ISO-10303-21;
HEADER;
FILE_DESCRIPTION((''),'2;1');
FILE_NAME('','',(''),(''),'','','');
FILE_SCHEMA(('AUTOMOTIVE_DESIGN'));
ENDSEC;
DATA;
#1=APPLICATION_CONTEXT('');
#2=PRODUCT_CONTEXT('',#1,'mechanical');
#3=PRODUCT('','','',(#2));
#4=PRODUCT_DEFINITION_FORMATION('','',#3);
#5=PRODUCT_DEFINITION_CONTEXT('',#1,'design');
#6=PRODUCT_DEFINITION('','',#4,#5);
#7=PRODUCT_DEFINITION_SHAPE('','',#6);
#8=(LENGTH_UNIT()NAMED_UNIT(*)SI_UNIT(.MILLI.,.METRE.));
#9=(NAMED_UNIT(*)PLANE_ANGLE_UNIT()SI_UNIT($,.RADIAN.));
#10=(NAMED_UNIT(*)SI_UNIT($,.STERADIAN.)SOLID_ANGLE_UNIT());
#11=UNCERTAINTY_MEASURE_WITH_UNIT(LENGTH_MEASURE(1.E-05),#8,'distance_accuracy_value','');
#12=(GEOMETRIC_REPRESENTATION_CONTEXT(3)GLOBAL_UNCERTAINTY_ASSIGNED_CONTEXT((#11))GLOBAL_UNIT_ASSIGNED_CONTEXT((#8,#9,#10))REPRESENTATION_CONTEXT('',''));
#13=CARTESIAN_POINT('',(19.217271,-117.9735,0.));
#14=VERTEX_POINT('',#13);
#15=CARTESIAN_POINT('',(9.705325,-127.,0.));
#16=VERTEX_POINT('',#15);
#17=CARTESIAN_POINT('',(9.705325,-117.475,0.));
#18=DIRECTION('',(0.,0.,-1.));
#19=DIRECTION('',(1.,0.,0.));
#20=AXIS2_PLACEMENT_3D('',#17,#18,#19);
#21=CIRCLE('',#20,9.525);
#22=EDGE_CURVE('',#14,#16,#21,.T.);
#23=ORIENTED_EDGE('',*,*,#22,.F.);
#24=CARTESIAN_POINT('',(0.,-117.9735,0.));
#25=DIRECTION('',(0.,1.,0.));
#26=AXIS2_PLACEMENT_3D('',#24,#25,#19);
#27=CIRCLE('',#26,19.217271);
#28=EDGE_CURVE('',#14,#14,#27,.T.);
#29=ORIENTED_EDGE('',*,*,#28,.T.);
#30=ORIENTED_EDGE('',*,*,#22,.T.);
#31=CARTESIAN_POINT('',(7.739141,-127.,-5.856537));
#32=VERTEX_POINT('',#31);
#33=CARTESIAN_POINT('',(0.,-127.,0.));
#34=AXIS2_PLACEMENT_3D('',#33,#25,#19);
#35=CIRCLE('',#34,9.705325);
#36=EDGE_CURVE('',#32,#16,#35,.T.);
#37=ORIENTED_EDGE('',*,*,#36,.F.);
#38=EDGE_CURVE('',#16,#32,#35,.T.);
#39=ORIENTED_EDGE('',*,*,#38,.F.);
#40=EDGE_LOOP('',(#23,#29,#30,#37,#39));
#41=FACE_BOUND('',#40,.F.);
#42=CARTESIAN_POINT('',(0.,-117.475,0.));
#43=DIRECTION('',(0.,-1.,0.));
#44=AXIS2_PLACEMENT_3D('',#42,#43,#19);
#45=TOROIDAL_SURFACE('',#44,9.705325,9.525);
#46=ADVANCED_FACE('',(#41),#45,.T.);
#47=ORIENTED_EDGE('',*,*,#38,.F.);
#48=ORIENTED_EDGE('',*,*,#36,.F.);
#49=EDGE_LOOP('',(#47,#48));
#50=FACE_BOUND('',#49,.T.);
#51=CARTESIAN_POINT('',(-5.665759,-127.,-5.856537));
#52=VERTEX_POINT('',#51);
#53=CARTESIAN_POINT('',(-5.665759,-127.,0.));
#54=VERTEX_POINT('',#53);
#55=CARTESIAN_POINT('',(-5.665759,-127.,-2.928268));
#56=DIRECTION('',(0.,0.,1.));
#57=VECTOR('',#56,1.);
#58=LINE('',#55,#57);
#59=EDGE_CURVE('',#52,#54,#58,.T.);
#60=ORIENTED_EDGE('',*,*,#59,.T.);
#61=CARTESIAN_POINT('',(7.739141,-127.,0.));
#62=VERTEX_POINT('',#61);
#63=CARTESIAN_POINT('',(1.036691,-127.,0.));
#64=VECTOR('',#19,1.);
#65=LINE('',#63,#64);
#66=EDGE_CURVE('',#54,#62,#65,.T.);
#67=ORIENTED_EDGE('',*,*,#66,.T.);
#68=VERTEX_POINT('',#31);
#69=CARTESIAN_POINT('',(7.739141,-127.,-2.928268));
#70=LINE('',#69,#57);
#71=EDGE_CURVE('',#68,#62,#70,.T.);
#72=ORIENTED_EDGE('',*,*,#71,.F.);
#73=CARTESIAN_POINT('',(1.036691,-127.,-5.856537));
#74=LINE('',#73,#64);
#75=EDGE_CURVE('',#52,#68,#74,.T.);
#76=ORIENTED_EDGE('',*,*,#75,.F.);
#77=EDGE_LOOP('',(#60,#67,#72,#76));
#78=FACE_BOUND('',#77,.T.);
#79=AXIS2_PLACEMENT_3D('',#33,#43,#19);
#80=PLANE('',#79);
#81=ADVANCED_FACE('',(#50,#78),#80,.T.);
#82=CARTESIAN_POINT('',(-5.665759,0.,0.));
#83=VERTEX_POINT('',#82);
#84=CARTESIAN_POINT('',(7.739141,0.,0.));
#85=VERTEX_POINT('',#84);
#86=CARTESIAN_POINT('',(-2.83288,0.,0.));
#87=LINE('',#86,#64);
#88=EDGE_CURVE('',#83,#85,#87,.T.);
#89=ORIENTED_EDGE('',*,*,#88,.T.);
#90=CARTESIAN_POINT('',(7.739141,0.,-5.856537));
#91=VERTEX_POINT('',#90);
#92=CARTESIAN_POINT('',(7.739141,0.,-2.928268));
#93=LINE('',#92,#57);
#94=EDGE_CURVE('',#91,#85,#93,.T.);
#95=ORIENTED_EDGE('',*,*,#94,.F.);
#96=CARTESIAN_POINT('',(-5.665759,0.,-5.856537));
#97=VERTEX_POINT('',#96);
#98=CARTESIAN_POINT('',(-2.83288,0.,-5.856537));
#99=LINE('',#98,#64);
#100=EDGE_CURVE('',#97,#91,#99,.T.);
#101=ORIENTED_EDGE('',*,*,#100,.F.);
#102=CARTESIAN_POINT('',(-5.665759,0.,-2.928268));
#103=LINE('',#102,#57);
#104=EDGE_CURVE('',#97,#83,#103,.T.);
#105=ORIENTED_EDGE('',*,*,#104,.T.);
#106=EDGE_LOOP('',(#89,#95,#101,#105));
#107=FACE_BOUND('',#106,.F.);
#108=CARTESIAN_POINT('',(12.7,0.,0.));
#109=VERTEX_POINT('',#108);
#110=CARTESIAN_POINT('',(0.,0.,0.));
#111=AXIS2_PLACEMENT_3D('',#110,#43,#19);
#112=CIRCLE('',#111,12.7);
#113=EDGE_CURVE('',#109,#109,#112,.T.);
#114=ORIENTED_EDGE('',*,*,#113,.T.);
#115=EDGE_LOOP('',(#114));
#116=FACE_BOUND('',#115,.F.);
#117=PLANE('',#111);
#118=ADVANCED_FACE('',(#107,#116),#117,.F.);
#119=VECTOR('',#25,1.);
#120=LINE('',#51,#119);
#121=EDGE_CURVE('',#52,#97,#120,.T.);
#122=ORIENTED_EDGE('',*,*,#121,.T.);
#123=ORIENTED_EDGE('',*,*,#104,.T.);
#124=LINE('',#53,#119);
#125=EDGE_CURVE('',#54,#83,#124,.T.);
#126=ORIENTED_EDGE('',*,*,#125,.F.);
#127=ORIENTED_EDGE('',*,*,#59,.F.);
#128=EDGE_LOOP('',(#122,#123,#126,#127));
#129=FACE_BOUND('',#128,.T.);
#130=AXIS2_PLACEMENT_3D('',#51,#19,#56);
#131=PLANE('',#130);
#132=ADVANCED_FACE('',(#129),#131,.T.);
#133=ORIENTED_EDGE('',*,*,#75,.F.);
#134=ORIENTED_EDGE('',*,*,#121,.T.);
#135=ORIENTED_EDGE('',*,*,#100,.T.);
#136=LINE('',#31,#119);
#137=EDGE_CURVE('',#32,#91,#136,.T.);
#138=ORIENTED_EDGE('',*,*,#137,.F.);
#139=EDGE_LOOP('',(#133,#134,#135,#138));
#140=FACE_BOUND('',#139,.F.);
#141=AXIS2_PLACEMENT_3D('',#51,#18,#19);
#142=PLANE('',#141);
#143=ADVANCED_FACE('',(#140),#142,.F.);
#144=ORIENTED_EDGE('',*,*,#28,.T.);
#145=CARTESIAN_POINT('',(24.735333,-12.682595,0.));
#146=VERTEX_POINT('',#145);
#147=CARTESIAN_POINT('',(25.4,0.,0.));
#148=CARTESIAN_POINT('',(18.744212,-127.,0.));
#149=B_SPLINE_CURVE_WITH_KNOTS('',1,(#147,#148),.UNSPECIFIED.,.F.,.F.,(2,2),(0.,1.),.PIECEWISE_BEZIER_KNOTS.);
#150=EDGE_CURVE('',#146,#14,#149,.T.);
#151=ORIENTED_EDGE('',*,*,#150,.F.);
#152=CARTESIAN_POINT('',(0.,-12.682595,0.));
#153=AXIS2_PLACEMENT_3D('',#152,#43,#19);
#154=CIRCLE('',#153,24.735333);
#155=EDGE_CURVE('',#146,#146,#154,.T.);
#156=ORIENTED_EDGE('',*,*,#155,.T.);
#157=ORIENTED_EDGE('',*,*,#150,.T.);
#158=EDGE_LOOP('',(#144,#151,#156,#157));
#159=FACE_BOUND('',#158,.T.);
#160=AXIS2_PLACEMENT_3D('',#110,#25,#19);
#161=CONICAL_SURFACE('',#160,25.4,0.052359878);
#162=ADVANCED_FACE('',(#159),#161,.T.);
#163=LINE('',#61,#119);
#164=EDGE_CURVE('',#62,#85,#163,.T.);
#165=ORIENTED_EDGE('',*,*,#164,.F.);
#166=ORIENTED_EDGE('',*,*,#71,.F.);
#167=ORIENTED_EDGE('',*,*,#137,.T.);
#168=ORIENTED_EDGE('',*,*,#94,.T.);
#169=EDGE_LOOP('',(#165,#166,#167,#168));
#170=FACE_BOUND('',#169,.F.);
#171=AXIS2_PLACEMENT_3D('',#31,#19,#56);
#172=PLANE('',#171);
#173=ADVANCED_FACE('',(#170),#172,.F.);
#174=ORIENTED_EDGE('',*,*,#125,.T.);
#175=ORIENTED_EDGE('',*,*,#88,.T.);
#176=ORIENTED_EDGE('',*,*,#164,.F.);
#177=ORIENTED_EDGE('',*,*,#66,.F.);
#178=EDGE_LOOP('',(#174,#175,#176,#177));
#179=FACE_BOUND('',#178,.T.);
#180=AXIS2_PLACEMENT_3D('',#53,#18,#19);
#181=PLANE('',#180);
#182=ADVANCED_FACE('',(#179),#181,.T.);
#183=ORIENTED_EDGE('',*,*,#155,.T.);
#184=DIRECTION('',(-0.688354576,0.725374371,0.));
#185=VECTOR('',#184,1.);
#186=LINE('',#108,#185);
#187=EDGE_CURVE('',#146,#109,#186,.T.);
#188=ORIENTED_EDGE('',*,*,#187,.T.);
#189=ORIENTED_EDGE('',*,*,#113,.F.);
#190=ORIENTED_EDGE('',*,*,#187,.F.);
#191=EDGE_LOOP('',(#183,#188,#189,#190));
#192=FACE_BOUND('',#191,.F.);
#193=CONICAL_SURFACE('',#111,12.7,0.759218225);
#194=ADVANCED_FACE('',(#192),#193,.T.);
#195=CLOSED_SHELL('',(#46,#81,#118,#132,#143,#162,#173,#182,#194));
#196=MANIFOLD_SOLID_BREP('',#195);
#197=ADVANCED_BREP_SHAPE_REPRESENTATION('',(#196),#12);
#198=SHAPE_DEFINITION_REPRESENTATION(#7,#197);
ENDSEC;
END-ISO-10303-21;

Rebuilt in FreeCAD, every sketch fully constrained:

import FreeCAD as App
import Part
import Sketcher

V = App.Vector
Q = App.Units.Quantity


def edges_at(feature, points):
    """Names of the edges that pass closest to the given points."""
    edges = feature.Shape.Edges
    near = lambda p: min(range(len(edges)), key=lambda i: edges[i].distToShape(Part.Vertex(*p))[0])
    return sorted({f"Edge{near(p) + 1}" for p in points})


def add_polygon(sketch, points):
    """Adds a closed chain of lines whose ends are joined by coincident constraints."""
    first, n = sketch.GeometryCount, len(points)
    for a, b in zip(points, points[1:] + points[:1]):
        sketch.addGeometry(Part.LineSegment(App.Vector(*a, 0), App.Vector(*b, 0)), False)
    for i in range(n):
        sketch.addConstraint(Sketcher.Constraint("Coincident", first + i, 2, first + (i + 1) % n, 1))

doc = App.newDocument("Part")
params = doc.addObject("Spreadsheet::Sheet", "Params")
for row, (alias, value) in enumerate([
    ("sketch1_diameter", "2 in"),
    ("pad1_length", "5 in"),
    ("pad1_taper", "-3 deg"),
    ("fillet_radius", "0.375 in"),
    ("chamfer_size", "0.5 in"),
], start=1):
    params.set(f"A{row}", alias)
    params.set(f"B{row}", "=" + value)
    params.setAlias(f"B{row}", alias)

body = doc.addObject("PartDesign::Body", "Body")

# Sketch on XZ plane
sketch1 = body.newObject("Sketcher::SketchObject", "Sketch")
sketch1.AttachmentSupport = (doc.getObject("XZ_Plane"), [""])
sketch1.MapMode = "FlatFace"
sketch1.addGeometry(Part.Circle(V(0, 0, 0), V(0, 0, 1), 25.4), False)
sketch1.addConstraint(Sketcher.Constraint("Coincident", 0, 3, -1, 1))
sketch1.addConstraint(Sketcher.Constraint("Diameter", 0, Q("2 in")))
sketch1.setExpression("Constraints[1]", "Params.sketch1_diameter")
pad1 = body.newObject("PartDesign::Pad", "Pad")
pad1.Profile = sketch1
pad1.setExpression("Length", "Params.pad1_length")
pad1.setExpression("TaperAngle", "Params.pad1_taper")
doc.recompute()

fillet = body.newObject("PartDesign::Fillet", "Fillet")
fillet.Base = (pad1, edges_at(pad1, [(-18.744, -127, 0)]))
fillet.setExpression("Radius", "Params.fillet_radius")
doc.recompute()

chamfer = body.newObject("PartDesign::Chamfer", "Chamfer")
chamfer.Base = (fillet, edges_at(fillet, [(-25.4, 0, 0)]))
chamfer.setExpression("Size", "Params.chamfer_size")

# Sketch on XZ plane
sketch2 = body.newObject("Sketcher::SketchObject", "Sketch001")
sketch2.AttachmentSupport = (doc.getObject("XZ_Plane"), [""])
sketch2.MapMode = "FlatFace"
sketch2.AttachmentOffset = App.Placement(V(0, 0, 5 * 25.4), App.Rotation())
add_polygon(sketch2, [(-5.665759, 0), (-5.665759, -5.856537), (7.739141, -5.856537), (7.739141, 0)])  # lines 0-3
sketch2.addConstraint(Sketcher.Constraint("Vertical", 0))
sketch2.addConstraint(Sketcher.Constraint("Horizontal", 1))
sketch2.addConstraint(Sketcher.Constraint("Vertical", 2))
sketch2.addConstraint(Sketcher.Constraint("Horizontal", 3))
sketch2.addConstraint(Sketcher.Constraint("PointOnObject", 2, 2, -1))
sketch2.addConstraint(Sketcher.Constraint("DistanceX", 1, 1, 1, 2, 13.4049))
sketch2.addConstraint(Sketcher.Constraint("DistanceY", 0, 2, 0, 1, 5.856537))
sketch2.addConstraint(Sketcher.Constraint("DistanceX", 0, 2, -1, 1, 5.665759))
pocket1 = body.newObject("PartDesign::Pocket", "Pocket")
pocket1.Profile = sketch2
pocket1.Type = "ThroughAll"

doc.recompute()
